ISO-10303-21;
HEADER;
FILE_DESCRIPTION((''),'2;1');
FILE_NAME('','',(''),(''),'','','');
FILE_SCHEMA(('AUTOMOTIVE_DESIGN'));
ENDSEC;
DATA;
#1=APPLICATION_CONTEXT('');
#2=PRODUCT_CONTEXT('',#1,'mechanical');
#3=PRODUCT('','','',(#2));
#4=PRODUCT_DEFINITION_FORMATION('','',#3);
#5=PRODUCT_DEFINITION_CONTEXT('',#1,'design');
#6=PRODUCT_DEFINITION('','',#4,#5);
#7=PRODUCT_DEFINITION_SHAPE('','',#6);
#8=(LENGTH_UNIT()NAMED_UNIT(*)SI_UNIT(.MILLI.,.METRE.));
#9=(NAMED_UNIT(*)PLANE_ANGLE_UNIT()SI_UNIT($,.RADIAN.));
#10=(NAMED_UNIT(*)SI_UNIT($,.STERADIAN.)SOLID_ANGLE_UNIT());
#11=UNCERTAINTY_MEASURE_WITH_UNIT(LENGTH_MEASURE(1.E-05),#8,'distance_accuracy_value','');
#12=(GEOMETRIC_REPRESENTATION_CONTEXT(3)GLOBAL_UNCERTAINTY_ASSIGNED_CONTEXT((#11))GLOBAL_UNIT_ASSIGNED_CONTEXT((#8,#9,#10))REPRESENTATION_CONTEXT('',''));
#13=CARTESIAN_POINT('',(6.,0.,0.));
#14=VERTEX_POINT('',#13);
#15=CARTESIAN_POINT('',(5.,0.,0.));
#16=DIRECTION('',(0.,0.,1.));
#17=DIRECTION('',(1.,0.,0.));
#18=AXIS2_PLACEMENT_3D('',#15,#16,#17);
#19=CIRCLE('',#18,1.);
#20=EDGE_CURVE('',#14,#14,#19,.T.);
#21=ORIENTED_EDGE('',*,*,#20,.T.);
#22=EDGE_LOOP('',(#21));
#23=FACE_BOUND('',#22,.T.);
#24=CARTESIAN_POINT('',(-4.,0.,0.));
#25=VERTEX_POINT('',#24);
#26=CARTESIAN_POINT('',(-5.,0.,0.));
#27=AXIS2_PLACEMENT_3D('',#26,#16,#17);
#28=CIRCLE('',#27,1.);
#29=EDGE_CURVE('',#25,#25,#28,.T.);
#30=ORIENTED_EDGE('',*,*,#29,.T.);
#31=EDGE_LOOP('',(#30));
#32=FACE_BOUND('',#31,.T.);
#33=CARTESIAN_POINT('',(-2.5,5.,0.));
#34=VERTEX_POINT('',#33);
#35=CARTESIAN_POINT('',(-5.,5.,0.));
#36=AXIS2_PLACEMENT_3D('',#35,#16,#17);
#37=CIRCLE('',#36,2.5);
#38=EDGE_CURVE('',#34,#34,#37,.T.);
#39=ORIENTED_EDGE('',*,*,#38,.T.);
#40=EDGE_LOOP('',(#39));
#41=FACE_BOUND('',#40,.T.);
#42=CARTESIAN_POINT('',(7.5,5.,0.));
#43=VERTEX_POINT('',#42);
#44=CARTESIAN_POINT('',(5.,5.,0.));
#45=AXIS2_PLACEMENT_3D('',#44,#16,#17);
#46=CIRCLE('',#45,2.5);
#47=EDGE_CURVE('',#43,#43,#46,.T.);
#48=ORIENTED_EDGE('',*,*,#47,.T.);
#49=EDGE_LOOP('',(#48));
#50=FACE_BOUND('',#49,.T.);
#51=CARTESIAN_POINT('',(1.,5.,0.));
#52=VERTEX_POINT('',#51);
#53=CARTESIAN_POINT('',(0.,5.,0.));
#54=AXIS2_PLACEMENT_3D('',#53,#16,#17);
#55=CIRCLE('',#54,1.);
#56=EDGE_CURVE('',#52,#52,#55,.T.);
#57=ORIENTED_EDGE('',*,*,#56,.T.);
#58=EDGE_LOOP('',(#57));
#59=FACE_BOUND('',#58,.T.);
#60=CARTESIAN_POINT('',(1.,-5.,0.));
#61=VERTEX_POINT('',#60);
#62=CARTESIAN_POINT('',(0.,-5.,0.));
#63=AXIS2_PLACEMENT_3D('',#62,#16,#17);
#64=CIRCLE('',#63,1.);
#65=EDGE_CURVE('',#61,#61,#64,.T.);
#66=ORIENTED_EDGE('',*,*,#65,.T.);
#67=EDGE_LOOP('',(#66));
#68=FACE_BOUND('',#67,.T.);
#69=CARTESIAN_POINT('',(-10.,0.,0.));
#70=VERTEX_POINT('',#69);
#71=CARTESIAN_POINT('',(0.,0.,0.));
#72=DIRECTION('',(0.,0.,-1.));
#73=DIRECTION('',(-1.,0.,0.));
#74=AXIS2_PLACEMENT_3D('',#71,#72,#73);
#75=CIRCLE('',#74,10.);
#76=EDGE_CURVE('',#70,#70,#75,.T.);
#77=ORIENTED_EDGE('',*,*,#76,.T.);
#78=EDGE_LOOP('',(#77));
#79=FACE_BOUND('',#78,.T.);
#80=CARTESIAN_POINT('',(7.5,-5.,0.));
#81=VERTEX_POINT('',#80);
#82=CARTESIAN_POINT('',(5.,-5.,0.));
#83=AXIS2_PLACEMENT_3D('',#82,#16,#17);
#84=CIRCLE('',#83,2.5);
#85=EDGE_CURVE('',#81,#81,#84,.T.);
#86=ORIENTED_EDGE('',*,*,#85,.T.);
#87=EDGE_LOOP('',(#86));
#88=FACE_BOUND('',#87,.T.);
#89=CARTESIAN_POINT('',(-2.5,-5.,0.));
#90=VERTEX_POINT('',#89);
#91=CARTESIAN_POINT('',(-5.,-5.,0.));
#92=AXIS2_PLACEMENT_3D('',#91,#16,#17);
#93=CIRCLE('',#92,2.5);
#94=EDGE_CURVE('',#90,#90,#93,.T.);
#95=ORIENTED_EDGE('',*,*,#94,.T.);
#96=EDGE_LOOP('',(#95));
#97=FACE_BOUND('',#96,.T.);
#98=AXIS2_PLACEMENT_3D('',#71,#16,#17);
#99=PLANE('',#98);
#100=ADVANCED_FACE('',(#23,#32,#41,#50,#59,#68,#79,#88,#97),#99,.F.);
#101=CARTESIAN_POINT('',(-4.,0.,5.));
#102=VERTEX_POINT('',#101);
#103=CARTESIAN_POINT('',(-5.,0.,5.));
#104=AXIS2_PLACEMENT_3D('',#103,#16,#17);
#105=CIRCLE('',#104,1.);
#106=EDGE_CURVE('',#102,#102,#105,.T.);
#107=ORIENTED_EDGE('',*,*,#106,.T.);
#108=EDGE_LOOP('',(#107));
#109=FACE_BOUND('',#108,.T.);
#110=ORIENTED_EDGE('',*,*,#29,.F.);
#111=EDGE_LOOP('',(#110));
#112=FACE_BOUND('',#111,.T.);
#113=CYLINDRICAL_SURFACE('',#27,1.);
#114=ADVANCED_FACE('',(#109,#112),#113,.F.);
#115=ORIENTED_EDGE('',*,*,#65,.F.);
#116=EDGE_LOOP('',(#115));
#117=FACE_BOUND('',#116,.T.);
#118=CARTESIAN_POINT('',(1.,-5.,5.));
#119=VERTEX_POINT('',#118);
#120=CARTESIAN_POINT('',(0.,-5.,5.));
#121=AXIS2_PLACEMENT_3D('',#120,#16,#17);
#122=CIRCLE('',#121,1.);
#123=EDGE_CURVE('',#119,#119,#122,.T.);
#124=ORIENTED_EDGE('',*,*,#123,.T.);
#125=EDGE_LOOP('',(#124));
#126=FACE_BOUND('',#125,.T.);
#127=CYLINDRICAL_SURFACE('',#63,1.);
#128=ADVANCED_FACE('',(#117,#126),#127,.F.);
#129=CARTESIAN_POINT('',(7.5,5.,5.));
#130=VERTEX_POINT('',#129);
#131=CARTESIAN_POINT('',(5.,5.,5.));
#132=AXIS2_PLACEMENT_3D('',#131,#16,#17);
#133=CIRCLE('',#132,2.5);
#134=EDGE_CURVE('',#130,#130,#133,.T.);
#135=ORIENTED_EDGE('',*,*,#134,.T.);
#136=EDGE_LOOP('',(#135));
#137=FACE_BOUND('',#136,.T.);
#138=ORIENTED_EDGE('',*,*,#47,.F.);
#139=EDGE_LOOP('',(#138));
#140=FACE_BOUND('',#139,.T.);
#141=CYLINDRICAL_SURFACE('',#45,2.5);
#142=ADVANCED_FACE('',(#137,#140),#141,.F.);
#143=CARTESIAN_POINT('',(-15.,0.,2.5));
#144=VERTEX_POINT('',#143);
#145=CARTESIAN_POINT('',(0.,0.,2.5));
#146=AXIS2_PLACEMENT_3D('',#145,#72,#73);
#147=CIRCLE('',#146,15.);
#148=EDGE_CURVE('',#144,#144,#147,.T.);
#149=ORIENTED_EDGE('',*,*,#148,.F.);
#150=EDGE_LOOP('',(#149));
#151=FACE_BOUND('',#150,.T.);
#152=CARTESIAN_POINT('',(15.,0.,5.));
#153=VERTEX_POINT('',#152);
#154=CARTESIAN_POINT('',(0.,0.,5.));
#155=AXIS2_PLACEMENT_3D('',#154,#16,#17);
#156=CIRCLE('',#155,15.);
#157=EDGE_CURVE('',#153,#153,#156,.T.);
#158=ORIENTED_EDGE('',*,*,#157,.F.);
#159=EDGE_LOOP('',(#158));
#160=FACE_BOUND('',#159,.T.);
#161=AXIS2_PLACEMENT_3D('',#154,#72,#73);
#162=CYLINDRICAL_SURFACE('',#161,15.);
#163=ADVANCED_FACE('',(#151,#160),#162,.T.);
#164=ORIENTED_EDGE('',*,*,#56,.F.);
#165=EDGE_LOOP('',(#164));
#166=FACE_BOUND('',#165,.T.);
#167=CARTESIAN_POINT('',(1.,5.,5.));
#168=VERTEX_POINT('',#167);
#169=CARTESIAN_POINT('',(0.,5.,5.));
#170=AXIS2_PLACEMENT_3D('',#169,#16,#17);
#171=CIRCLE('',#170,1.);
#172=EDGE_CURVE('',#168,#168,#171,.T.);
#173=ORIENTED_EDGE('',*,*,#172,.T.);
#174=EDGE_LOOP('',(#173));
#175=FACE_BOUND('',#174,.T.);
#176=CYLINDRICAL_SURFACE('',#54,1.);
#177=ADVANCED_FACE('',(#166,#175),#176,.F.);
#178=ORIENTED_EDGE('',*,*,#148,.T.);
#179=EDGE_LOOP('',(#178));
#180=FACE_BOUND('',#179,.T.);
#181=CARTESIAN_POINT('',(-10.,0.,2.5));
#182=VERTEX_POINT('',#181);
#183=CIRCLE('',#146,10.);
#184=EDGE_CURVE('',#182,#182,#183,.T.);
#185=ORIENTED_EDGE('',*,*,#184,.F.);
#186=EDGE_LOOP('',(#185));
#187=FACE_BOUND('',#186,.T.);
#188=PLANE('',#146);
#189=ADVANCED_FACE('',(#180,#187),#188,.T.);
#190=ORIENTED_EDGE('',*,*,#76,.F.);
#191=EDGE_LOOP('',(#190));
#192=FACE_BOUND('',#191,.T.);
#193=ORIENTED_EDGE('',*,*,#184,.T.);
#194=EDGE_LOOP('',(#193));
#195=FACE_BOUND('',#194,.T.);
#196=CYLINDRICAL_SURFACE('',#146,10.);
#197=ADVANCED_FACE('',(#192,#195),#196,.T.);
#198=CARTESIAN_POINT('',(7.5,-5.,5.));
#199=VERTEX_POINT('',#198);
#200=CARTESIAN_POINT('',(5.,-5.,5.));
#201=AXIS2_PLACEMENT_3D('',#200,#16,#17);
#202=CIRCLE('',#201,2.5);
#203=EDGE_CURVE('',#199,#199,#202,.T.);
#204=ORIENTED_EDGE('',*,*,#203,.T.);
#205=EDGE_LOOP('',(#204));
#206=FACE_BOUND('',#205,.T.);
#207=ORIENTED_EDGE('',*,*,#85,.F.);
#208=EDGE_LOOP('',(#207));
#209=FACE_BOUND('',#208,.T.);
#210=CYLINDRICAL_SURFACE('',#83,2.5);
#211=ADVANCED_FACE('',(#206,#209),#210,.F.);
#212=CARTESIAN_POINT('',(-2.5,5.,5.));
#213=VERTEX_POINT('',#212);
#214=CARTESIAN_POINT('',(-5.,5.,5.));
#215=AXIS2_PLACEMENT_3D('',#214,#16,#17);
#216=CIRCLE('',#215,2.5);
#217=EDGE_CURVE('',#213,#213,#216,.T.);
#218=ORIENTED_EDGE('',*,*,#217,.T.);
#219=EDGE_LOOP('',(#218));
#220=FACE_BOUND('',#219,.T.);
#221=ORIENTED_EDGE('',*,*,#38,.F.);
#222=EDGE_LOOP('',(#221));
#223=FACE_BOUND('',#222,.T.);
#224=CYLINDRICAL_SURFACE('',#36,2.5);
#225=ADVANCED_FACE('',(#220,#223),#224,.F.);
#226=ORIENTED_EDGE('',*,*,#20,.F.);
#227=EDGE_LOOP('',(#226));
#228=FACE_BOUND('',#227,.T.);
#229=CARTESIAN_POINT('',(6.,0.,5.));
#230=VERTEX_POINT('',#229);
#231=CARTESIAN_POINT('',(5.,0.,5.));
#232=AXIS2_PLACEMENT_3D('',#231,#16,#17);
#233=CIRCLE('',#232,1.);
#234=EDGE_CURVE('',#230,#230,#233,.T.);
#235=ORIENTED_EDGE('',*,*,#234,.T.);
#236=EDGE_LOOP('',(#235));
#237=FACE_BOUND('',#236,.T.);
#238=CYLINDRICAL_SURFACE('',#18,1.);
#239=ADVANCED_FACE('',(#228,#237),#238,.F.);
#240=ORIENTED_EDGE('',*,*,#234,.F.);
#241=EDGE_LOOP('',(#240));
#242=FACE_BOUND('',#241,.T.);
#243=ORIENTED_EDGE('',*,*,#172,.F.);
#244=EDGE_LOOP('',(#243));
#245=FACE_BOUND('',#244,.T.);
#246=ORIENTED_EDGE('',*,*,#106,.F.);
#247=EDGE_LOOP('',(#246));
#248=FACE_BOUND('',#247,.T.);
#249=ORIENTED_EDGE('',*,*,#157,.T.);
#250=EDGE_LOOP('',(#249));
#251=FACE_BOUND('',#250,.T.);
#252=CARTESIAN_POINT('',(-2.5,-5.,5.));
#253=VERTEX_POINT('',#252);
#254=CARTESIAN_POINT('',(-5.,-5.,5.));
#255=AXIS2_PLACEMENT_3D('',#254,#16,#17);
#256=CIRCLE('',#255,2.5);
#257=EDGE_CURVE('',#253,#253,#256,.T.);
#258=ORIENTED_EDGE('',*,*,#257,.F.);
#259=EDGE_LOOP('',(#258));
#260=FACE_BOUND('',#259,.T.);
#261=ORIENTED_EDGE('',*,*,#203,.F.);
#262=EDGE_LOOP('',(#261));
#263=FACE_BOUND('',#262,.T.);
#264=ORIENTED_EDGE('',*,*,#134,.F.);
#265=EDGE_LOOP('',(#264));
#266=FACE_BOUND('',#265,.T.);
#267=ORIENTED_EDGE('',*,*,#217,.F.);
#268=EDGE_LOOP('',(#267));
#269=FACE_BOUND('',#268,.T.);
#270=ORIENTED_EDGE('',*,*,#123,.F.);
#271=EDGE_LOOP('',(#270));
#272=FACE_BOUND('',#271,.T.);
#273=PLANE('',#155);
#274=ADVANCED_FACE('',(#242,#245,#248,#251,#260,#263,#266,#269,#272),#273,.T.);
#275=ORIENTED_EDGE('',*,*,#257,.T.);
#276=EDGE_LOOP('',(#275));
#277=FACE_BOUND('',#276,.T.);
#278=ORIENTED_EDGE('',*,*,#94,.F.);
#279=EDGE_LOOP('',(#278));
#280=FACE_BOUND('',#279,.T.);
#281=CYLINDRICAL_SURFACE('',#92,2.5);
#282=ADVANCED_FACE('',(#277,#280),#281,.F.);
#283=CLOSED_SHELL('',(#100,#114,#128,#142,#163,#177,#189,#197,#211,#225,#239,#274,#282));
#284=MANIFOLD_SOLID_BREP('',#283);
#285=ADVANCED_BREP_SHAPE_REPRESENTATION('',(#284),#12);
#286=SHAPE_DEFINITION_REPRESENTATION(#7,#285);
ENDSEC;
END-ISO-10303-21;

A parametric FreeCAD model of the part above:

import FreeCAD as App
import Part
import Sketcher
Q = App.Units.Quantity

doc = App.newDocument("Part")
params = doc.addObject("Spreadsheet::Sheet", "Params")
for row, (alias, value) in enumerate([
    ("sketch1_diameter", "30 mm"),
    ("pad1_length", "5 mm"),
    ("sketch2_diameter", "30 mm"),
    ("sketch2_diameter2", "20 mm"),
    ("pocket1_length", "2.5 mm"),
    ("sketch3_diameter", "5 mm"),
    ("sketch4_diameter", "2 mm"),
], start=1):
    params.set(f"A{row}", alias)
    params.set(f"B{row}", "=" + value)
    params.setAlias(f"B{row}", alias)

body = doc.addObject("PartDesign::Body", "Body")

# Sketch on XY plane
sketch1 = body.newObject("Sketcher::SketchObject", "Sketch")
sketch1.AttachmentSupport = (doc.getObject("XY_Plane"), [""])
sketch1.MapMode = "FlatFace"
sketch1.addGeometry(Part.Circle(App.Vector(0, 0, 0), App.Vector(0, 0, 1), 15), False)
sketch1.addConstraint([
    Sketcher.Constraint("Coincident", 0, 3, -1, 1),
    Sketcher.Constraint("Diameter", 0, Q("30 mm")),
])
sketch1.setExpression("Constraints[1]", "Params.sketch1_diameter")
pad1 = body.newObject("PartDesign::Pad", "Pad")
pad1.Profile = sketch1
pad1.setExpression("Length", "Params.pad1_length")

# Sketch on XY plane
sketch2 = body.newObject("Sketcher::SketchObject", "Sketch001")
sketch2.AttachmentSupport = (doc.getObject("XY_Plane"), [""])
sketch2.MapMode = "FlatFace"
sketch2.addGeometry([
    Part.Circle(App.Vector(0, 0, 0), App.Vector(0, 0, 1), 15),
    Part.Circle(App.Vector(0, 0, 0), App.Vector(0, 0, 1), 10),
], False)
sketch2.addConstraint([
    Sketcher.Constraint("Coincident", 0, 3, -1, 1),
    Sketcher.Constraint("Coincident", 1, 3, -1, 1),
    Sketcher.Constraint("Diameter", 0, Q("30 mm")),
    Sketcher.Constraint("Diameter", 1, Q("20 mm")),
])
sketch2.setExpression("Constraints[2]", "Params.sketch2_diameter")
sketch2.setExpression("Constraints[3]", "Params.sketch2_diameter2")
pocket1 = body.newObject("PartDesign::Pocket", "Pocket")
pocket1.Profile = sketch2
pocket1.setExpression("Length", "Params.pocket1_length")
pocket1.Reversed = True

# Sketch on XY plane
sketch3 = body.newObject("Sketcher::SketchObject", "Sketch002")
sketch3.AttachmentSupport = (doc.getObject("XY_Plane"), [""])
sketch3.MapMode = "FlatFace"
sketch3.AttachmentOffset = App.Placement(App.Vector(0, 0, 5), App.Rotation())
sketch3.addGeometry([
    Part.Circle(App.Vector(-5, 5, 0), App.Vector(0, 0, 1), 2.5),
    Part.Circle(App.Vector(5, 5, 0), App.Vector(0, 0, 1), 2.5),
    Part.Circle(App.Vector(5, -5, 0), App.Vector(0, 0, 1), 2.5),
    Part.Circle(App.Vector(-5, -5, 0), App.Vector(0, 0, 1), 2.5),
], False)
sketch3.addConstraint([
    Sketcher.Constraint("Equal", 0, 1),
    Sketcher.Constraint("Equal", 1, 2),
    Sketcher.Constraint("Equal", 2, 3),
    Sketcher.Constraint("Symmetric", 0, 3, 2, 3, -1, 1),
    Sketcher.Constraint("Symmetric", 1, 3, 3, 3, -1, 1),
    Sketcher.Constraint("Symmetric", 0, 3, 1, 3, -2),
    Sketcher.Constraint("Diameter", 0, Q("5 mm")),
    Sketcher.Constraint("DistanceX", 0, 3, -1, 1, Q("5 mm")),
    Sketcher.Constraint("DistanceY", -1, 1, 0, 3, Q("5 mm")),
])
sketch3.setExpression("Constraints[6]", "Params.sketch3_diameter")
pocket2 = body.newObject("PartDesign::Pocket", "Pocket001")
pocket2.Profile = sketch3
pocket2.Type = "ThroughAll"

# Sketch on XY plane
sketch4 = body.newObject("Sketcher::SketchObject", "Sketch003")
sketch4.AttachmentSupport = (doc.getObject("XY_Plane"), [""])
sketch4.MapMode = "FlatFace"
sketch4.AttachmentOffset = App.Placement(App.Vector(0, 0, 5), App.Rotation())
sketch4.addGeometry([
    Part.Circle(App.Vector(0, 5, 0), App.Vector(0, 0, 1), 1),
    Part.Circle(App.Vector(5, 0, 0), App.Vector(0, 0, 1), 1),
    Part.Circle(App.Vector(0, -5, 0), App.Vector(0, 0, 1), 1),
    Part.Circle(App.Vector(-5, 0, 0), App.Vector(0, 0, 1), 1),
], False)
sketch4.addConstraint([
    Sketcher.Constraint("Equal", 0, 1),
    Sketcher.Constraint("Equal", 1, 2),
    Sketcher.Constraint("Equal", 2, 3),
    Sketcher.Constraint("Symmetric", 0, 3, 2, 3, -1, 1),
    Sketcher.Constraint("Symmetric", 1, 3, 3, 3, -1, 1),
    Sketcher.Constraint("PointOnObject", 0, 3, -2),
    Sketcher.Constraint("PointOnObject", 1, 3, -1),
    Sketcher.Constraint("Diameter", 0, Q("2 mm")),
    Sketcher.Constraint("DistanceY", -1, 1, 0, 3, Q("5 mm")),
    Sketcher.Constraint("DistanceX", -1, 1, 1, 3, Q("5 mm")),
])
sketch4.setExpression("Constraints[7]", "Params.sketch4_diameter")
pocket3 = body.newObject("PartDesign::Pocket", "Pocket002")
pocket3.Profile = sketch4
pocket3.Type = "ThroughAll"

doc.recompute()
